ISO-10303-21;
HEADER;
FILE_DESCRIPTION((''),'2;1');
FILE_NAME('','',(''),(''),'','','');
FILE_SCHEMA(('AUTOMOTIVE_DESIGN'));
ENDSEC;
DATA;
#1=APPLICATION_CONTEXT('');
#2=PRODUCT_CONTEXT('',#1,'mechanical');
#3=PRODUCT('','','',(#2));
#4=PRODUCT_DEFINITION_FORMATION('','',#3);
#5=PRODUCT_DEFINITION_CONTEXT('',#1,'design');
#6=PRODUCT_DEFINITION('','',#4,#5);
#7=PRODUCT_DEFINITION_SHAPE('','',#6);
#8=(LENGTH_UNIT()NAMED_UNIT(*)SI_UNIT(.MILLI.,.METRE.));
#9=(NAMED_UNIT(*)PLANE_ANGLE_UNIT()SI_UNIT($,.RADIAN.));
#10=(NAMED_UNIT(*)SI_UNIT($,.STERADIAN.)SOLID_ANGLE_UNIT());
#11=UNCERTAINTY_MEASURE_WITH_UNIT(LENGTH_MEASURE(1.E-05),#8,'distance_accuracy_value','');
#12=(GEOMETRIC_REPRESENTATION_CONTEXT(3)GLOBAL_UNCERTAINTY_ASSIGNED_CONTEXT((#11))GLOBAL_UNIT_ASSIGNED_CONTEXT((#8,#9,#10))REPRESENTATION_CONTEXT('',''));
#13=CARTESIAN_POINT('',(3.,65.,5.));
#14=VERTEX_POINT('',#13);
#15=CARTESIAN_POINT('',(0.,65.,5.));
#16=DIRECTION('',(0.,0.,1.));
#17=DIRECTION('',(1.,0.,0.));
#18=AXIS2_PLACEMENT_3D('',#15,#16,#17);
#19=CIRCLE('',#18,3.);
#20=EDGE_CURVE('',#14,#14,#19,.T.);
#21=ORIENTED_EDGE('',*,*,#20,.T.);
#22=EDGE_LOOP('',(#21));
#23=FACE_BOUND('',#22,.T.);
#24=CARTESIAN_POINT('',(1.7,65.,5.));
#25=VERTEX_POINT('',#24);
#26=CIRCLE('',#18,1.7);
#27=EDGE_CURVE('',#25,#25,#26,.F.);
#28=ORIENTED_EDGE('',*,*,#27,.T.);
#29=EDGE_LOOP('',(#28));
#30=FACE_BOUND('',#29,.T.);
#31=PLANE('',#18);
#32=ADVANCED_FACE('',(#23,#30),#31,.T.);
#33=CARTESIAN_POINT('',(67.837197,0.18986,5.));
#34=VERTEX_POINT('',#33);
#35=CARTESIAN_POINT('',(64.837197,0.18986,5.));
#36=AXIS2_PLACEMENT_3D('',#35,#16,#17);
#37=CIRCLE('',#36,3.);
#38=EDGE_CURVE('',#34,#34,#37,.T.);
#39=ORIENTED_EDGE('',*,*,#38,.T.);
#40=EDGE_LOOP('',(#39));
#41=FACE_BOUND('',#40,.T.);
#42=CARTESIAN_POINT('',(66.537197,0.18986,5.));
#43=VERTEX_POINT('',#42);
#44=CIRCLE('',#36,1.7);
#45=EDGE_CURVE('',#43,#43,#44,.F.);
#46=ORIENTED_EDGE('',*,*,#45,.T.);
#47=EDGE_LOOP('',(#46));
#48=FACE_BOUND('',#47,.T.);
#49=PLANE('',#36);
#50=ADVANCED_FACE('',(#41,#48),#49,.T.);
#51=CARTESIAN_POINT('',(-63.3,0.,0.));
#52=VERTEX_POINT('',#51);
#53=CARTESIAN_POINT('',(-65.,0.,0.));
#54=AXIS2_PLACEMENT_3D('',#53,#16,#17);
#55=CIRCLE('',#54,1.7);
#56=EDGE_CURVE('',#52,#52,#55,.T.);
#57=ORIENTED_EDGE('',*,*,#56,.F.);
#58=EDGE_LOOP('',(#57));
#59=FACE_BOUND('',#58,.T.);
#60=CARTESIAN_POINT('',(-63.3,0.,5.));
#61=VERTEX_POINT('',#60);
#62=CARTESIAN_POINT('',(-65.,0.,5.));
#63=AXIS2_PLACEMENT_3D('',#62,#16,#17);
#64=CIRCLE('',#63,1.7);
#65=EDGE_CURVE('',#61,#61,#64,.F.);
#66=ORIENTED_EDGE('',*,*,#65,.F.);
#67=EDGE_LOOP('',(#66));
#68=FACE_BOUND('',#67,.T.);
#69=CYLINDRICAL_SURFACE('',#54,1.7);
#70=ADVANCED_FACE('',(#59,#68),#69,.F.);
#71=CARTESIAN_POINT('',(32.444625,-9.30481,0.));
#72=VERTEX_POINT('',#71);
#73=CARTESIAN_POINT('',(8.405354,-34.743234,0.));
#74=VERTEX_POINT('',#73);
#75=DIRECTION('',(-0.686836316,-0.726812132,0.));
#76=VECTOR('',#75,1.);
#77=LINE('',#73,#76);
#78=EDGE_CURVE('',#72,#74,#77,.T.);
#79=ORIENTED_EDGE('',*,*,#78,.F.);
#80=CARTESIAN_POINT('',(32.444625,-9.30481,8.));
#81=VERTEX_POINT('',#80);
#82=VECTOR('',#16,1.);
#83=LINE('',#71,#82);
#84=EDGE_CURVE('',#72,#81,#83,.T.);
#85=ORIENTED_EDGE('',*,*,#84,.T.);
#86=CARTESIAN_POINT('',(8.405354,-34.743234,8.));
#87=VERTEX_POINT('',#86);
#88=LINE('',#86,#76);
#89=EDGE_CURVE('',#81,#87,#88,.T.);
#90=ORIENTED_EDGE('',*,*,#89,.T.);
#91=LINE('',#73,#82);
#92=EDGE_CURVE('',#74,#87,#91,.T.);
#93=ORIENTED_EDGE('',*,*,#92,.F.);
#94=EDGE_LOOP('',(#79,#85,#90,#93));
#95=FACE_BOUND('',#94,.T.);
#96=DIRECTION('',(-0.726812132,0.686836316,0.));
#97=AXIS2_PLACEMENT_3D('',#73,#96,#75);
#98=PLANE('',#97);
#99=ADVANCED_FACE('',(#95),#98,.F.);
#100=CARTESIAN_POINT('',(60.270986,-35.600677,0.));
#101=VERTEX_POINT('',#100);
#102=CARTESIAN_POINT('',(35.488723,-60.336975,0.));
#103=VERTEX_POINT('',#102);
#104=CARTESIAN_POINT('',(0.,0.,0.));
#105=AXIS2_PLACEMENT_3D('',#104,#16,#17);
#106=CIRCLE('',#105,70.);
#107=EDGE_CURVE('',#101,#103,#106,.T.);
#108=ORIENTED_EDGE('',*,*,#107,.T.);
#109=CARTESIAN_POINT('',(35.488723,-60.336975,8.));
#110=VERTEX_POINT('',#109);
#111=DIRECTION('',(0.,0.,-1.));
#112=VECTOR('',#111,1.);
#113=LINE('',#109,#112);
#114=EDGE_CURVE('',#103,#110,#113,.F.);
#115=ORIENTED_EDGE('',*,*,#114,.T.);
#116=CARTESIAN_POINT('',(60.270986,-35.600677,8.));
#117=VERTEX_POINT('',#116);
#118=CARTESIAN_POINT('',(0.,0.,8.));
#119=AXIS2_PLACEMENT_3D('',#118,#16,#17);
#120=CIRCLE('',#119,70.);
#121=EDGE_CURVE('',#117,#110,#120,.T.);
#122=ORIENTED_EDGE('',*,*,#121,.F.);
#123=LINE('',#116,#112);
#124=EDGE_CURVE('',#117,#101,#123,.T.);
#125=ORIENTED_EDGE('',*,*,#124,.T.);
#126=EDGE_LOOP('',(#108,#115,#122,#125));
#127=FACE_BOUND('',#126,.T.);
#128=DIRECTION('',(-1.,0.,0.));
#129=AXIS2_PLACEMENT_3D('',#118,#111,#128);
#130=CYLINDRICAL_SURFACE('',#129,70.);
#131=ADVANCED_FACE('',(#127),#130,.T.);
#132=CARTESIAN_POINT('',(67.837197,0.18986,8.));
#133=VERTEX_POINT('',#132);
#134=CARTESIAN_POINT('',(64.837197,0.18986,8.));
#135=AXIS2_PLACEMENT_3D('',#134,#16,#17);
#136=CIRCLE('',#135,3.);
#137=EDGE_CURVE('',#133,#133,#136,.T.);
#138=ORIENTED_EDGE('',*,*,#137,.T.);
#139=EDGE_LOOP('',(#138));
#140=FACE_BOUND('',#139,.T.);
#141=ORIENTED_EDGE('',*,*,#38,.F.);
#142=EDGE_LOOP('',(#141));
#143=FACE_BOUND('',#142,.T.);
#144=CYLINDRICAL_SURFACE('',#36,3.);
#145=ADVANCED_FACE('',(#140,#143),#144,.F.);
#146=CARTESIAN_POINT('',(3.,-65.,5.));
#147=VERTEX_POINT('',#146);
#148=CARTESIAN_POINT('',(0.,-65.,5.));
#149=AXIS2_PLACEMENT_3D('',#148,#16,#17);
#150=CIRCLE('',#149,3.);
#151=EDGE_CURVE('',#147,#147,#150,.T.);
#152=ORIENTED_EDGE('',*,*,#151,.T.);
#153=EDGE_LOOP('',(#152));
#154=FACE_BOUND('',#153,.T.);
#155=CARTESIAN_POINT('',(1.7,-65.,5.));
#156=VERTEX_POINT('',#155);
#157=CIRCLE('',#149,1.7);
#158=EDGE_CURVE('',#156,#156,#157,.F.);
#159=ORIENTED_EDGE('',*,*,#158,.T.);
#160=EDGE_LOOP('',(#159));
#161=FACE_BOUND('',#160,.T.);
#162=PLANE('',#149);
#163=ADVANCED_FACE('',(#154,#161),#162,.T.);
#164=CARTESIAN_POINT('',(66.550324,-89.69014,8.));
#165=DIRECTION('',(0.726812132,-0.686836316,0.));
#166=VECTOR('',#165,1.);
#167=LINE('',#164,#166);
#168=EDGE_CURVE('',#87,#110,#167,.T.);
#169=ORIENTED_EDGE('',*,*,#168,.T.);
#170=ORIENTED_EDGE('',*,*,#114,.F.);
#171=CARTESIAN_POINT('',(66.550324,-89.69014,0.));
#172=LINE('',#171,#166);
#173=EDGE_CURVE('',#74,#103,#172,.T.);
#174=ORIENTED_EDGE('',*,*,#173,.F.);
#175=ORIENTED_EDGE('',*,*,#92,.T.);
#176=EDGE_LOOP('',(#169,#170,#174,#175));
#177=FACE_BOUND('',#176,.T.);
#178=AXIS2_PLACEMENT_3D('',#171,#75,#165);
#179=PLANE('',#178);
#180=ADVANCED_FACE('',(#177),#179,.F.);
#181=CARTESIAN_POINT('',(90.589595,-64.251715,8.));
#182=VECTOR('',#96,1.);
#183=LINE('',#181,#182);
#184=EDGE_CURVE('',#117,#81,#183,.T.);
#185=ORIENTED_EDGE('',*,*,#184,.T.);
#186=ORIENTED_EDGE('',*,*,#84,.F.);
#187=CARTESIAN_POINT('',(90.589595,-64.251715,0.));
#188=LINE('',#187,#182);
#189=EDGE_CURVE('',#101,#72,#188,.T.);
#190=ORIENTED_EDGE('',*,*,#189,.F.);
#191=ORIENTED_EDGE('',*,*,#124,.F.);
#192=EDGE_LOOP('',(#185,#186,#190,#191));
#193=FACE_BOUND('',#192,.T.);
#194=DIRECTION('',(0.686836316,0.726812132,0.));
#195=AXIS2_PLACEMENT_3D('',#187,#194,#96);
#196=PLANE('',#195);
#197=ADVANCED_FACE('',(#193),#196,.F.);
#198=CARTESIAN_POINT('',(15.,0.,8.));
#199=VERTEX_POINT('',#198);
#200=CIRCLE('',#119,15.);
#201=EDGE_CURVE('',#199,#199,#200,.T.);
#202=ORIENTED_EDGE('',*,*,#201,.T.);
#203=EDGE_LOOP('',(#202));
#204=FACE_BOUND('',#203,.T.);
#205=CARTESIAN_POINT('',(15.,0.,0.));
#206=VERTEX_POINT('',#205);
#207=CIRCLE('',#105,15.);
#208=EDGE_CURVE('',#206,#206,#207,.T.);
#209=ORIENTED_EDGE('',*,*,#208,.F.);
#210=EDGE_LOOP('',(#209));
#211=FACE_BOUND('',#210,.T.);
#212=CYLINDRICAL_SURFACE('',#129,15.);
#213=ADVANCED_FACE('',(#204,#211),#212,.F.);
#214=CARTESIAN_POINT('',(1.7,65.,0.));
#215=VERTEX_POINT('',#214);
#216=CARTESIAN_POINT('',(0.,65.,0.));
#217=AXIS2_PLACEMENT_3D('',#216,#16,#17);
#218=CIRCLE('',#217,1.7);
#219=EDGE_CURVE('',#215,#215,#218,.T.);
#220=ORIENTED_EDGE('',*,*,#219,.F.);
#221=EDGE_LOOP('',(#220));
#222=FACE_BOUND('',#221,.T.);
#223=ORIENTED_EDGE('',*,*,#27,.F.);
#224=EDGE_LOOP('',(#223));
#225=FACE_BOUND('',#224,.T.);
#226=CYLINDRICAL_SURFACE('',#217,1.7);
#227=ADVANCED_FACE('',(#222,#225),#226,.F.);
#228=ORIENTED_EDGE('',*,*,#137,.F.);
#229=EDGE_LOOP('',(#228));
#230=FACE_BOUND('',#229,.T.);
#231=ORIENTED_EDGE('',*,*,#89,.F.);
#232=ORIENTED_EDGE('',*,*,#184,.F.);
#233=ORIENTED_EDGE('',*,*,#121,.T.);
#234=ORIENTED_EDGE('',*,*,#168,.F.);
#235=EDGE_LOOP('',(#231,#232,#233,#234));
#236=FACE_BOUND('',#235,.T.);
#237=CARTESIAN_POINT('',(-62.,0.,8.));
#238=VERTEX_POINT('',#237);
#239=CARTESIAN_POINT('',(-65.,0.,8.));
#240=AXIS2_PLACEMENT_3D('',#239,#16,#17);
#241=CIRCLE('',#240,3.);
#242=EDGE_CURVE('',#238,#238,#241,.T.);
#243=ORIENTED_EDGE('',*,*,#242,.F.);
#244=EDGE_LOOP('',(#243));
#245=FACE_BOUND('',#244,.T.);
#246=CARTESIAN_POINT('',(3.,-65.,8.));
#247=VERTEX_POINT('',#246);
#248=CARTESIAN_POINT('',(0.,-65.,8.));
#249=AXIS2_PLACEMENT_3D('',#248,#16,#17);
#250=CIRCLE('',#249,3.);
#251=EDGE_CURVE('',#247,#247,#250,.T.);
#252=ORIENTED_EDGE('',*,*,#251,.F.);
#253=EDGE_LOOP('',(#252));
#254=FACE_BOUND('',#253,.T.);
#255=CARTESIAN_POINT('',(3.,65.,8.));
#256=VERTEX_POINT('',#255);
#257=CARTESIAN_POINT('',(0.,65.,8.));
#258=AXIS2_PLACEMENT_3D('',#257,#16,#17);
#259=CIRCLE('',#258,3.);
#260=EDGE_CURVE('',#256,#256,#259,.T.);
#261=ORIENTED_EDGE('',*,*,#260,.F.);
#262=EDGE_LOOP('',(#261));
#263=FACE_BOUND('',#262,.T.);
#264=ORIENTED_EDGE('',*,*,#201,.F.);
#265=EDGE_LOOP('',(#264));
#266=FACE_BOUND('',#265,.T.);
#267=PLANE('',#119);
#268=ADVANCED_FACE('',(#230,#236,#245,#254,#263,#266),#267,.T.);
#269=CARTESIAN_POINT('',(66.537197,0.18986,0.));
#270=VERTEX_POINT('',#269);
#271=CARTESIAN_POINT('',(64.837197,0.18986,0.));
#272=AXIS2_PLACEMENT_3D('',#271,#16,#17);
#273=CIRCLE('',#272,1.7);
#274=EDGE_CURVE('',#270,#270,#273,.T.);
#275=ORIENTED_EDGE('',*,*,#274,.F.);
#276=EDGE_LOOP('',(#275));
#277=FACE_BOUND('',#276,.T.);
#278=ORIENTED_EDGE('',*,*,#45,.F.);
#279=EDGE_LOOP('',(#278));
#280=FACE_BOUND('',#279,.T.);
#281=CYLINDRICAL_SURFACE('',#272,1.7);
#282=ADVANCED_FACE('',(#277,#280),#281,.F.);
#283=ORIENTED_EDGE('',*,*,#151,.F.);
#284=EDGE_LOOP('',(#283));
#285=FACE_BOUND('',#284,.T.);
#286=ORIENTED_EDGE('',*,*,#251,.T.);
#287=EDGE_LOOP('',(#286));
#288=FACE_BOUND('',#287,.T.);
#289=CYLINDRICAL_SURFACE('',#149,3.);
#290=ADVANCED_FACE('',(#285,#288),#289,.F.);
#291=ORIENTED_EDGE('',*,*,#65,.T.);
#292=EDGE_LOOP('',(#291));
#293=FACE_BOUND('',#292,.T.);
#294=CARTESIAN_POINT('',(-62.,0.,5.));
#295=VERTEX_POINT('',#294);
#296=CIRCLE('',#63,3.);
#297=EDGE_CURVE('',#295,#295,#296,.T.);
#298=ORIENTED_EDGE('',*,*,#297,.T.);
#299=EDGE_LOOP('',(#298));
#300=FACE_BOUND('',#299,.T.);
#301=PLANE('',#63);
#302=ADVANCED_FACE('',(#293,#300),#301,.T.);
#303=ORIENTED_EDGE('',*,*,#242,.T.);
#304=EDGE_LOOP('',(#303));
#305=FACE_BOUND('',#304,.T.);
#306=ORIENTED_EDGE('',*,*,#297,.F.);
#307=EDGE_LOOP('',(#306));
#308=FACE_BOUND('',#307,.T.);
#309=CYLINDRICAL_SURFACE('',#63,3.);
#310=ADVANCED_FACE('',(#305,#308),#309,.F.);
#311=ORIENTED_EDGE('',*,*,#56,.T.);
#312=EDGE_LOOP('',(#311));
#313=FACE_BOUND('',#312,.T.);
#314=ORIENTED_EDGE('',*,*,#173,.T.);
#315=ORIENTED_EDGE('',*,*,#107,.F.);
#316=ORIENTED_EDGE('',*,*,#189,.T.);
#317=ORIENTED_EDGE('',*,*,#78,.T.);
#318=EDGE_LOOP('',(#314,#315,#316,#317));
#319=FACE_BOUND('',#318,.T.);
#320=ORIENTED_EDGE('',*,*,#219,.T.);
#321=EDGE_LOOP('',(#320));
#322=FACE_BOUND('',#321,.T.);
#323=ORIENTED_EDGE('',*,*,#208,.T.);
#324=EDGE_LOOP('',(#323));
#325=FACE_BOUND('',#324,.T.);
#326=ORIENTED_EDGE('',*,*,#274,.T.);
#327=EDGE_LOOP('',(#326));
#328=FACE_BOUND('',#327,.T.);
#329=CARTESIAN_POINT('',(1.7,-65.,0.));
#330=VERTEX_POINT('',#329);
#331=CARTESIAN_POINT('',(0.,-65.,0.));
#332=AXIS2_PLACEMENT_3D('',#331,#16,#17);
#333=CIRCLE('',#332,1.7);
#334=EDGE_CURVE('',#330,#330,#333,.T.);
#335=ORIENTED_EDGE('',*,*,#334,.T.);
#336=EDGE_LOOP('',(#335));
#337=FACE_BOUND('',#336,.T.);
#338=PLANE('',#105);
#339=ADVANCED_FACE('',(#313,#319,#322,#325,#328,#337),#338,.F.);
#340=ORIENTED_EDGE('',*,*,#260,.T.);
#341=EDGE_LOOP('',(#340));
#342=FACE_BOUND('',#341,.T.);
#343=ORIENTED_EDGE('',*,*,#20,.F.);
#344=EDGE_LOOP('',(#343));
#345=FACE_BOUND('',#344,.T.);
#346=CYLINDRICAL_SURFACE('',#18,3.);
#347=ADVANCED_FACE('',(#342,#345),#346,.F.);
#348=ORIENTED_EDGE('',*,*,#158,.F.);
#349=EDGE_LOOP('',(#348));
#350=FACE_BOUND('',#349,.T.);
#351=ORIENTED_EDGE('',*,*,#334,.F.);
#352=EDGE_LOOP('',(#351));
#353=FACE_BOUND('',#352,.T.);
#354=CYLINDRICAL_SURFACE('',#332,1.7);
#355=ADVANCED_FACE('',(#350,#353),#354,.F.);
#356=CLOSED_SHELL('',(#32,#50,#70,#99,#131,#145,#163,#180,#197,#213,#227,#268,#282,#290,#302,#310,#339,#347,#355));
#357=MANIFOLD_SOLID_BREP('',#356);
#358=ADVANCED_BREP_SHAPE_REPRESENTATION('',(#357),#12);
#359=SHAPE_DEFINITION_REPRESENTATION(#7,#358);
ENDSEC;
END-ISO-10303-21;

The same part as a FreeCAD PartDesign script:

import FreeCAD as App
import Part
import Sketcher
from FreeCAD import Vector


def add_polygon(sketch, points):
    """Adds a closed chain of lines whose ends are joined by coincident constraints."""
    first, n = sketch.GeometryCount, len(points)
    for a, b in zip(points, points[1:] + points[:1]):
        sketch.addGeometry(Part.LineSegment(App.Vector(*a, 0), App.Vector(*b, 0)), False)
    for i in range(n):
        sketch.addConstraint(Sketcher.Constraint("Coincident", first + i, 2, first + (i + 1) % n, 1))

doc = App.newDocument("Part")
body = doc.addObject("PartDesign::Body", "Body")

sketch1 = body.newObject("Sketcher::SketchObject", "Sketch")
sketch1.AttachmentSupport = (doc.getObject("XY_Plane"), [""])
sketch1.MapMode = "FlatFace"
sketch1.addGeometry(Part.Circle(Vector(0, 0, 0), Vector(0, 0, 1), 70), False)
sketch1.addGeometry(Part.Circle(Vector(0, 0, 0), Vector(0, 0, 1), 15), False)
sketch1.addConstraint(Sketcher.Constraint("Coincident", 0, 3, -1, 1))
sketch1.addConstraint(Sketcher.Constraint("Coincident", 1, 3, -1, 1))
sketch1.addConstraint(Sketcher.Constraint("Diameter", 0, 140.0))
sketch1.addConstraint(Sketcher.Constraint("Diameter", 1, 30.0))
pad1 = body.newObject("PartDesign::Pad", "Pad")
pad1.Profile = sketch1
pad1.Length = 8

sketch2 = body.newObject("Sketcher::SketchObject", "Sketch001")
sketch2.AttachmentSupport = (doc.getObject("XY_Plane"), [""])
sketch2.MapMode = "FlatFace"
sketch2.AttachmentOffset = App.Placement(Vector(0, 0, 8), App.Rotation())
sketch2.addGeometry(Part.Circle(Vector(0, 65, 0), Vector(0, 0, 1), 1.7), False)
sketch2.addGeometry(Part.Circle(Vector(64.8, 0.2, 0), Vector(0, 0, 1), 1.7), False)
sketch2.addGeometry(Part.Circle(Vector(0, -65, 0), Vector(0, 0, 1), 1.7), False)
sketch2.addGeometry(Part.Circle(Vector(-65, 0, 0), Vector(0, 0, 1), 1.7), False)
sketch2.addConstraint(Sketcher.Constraint("Equal", 0, 1))
sketch2.addConstraint(Sketcher.Constraint("Equal", 1, 2))
sketch2.addConstraint(Sketcher.Constraint("Equal", 2, 3))
sketch2.addConstraint(Sketcher.Constraint("Symmetric", 0, 3, 2, 3, -1, 1))
sketch2.addConstraint(Sketcher.Constraint("PointOnObject", 0, 3, -2))
sketch2.addConstraint(Sketcher.Constraint("PointOnObject", 3, 3, -1))
sketch2.addConstraint(Sketcher.Constraint("Diameter", 0, 3.4))
sketch2.addConstraint(Sketcher.Constraint("DistanceY", -1, 1, 0, 3, 65.0))
sketch2.addConstraint(Sketcher.Constraint("DistanceX", 3, 3, -1, 1, 65.0))
sketch2.addConstraint(Sketcher.Constraint("DistanceY", -1, 1, 1, 3, 0.18986))
sketch2.addConstraint(Sketcher.Constraint("DistanceX", -1, 1, 1, 3, 64.837197))
pocket1 = body.newObject("PartDesign::Pocket", "Pocket")
pocket1.Profile = sketch2
pocket1.Length = 8

sketch3 = body.newObject("Sketcher::SketchObject", "Sketch002")
sketch3.AttachmentSupport = (doc.getObject("XY_Plane"), [""])
sketch3.MapMode = "FlatFace"
sketch3.AttachmentOffset = App.Placement(Vector(0, 0, 8), App.Rotation())
sketch3.addGeometry(Part.Circle(Vector(0, 65, 0), Vector(0, 0, 1), 3), False)
sketch3.addGeometry(Part.Circle(Vector(64.8, 0.2, 0), Vector(0, 0, 1), 3), False)
sketch3.addGeometry(Part.Circle(Vector(0, -65, 0), Vector(0, 0, 1), 3), False)
sketch3.addGeometry(Part.Circle(Vector(-65, 0, 0), Vector(0, 0, 1), 3), False)
sketch3.addConstraint(Sketcher.Constraint("Equal", 0, 1))
sketch3.addConstraint(Sketcher.Constraint("Equal", 1, 2))
sketch3.addConstraint(Sketcher.Constraint("Equal", 2, 3))
sketch3.addConstraint(Sketcher.Constraint("Symmetric", 0, 3, 2, 3, -1, 1))
sketch3.addConstraint(Sketcher.Constraint("PointOnObject", 0, 3, -2))
sketch3.addConstraint(Sketcher.Constraint("PointOnObject", 3, 3, -1))
sketch3.addConstraint(Sketcher.Constraint("Diameter", 0, 6.0))
sketch3.addConstraint(Sketcher.Constraint("DistanceY", -1, 1, 0, 3, 65.0))
sketch3.addConstraint(Sketcher.Constraint("DistanceX", 3, 3, -1, 1, 65.0))
sketch3.addConstraint(Sketcher.Constraint("DistanceY", -1, 1, 1, 3, 0.18986))
sketch3.addConstraint(Sketcher.Constraint("DistanceX", -1, 1, 1, 3, 64.837197))
pocket2 = body.newObject("PartDesign::Pocket", "Pocket001")
pocket2.Profile = sketch3
pocket2.Length = 3

sketch4 = body.newObject("Sketcher::SketchObject", "Sketch003")
sketch4.AttachmentSupport = (doc.getObject("XY_Plane"), [""])
sketch4.MapMode = "FlatFace"
sketch4.AttachmentOffset = App.Placement(Vector(0, 0, 8), App.Rotation())
add_polygon(sketch4, [(8, -35), (67, -90), (91, -64), (32, -9)])
sketch4.addConstraint(Sketcher.Constraint("Perpendicular", 0, 1))
sketch4.addConstraint(Sketcher.Constraint("Perpendicular", 1, 2))
sketch4.addConstraint(Sketcher.Constraint("Perpendicular", 2, 3))
sketch4.addConstraint(Sketcher.Constraint("Distance", 0, 80.0))
sketch4.addConstraint(Sketcher.Constraint("Distance", 1, 35.0))
sketch4.addConstraint(Sketcher.Constraint("DistanceX", 2, 2, 0, 2, 34.1057))
sketch4.addConstraint(Sketcher.Constraint("DistanceY", 0, 2, -1, 1, 89.69014))
sketch4.addConstraint(Sketcher.Constraint("DistanceX", -1, 1, 0, 2, 66.550324))
pocket3 = body.newObject("PartDesign::Pocket", "Pocket002")
pocket3.Profile = sketch4
pocket3.Length = 8

doc.recompute()
